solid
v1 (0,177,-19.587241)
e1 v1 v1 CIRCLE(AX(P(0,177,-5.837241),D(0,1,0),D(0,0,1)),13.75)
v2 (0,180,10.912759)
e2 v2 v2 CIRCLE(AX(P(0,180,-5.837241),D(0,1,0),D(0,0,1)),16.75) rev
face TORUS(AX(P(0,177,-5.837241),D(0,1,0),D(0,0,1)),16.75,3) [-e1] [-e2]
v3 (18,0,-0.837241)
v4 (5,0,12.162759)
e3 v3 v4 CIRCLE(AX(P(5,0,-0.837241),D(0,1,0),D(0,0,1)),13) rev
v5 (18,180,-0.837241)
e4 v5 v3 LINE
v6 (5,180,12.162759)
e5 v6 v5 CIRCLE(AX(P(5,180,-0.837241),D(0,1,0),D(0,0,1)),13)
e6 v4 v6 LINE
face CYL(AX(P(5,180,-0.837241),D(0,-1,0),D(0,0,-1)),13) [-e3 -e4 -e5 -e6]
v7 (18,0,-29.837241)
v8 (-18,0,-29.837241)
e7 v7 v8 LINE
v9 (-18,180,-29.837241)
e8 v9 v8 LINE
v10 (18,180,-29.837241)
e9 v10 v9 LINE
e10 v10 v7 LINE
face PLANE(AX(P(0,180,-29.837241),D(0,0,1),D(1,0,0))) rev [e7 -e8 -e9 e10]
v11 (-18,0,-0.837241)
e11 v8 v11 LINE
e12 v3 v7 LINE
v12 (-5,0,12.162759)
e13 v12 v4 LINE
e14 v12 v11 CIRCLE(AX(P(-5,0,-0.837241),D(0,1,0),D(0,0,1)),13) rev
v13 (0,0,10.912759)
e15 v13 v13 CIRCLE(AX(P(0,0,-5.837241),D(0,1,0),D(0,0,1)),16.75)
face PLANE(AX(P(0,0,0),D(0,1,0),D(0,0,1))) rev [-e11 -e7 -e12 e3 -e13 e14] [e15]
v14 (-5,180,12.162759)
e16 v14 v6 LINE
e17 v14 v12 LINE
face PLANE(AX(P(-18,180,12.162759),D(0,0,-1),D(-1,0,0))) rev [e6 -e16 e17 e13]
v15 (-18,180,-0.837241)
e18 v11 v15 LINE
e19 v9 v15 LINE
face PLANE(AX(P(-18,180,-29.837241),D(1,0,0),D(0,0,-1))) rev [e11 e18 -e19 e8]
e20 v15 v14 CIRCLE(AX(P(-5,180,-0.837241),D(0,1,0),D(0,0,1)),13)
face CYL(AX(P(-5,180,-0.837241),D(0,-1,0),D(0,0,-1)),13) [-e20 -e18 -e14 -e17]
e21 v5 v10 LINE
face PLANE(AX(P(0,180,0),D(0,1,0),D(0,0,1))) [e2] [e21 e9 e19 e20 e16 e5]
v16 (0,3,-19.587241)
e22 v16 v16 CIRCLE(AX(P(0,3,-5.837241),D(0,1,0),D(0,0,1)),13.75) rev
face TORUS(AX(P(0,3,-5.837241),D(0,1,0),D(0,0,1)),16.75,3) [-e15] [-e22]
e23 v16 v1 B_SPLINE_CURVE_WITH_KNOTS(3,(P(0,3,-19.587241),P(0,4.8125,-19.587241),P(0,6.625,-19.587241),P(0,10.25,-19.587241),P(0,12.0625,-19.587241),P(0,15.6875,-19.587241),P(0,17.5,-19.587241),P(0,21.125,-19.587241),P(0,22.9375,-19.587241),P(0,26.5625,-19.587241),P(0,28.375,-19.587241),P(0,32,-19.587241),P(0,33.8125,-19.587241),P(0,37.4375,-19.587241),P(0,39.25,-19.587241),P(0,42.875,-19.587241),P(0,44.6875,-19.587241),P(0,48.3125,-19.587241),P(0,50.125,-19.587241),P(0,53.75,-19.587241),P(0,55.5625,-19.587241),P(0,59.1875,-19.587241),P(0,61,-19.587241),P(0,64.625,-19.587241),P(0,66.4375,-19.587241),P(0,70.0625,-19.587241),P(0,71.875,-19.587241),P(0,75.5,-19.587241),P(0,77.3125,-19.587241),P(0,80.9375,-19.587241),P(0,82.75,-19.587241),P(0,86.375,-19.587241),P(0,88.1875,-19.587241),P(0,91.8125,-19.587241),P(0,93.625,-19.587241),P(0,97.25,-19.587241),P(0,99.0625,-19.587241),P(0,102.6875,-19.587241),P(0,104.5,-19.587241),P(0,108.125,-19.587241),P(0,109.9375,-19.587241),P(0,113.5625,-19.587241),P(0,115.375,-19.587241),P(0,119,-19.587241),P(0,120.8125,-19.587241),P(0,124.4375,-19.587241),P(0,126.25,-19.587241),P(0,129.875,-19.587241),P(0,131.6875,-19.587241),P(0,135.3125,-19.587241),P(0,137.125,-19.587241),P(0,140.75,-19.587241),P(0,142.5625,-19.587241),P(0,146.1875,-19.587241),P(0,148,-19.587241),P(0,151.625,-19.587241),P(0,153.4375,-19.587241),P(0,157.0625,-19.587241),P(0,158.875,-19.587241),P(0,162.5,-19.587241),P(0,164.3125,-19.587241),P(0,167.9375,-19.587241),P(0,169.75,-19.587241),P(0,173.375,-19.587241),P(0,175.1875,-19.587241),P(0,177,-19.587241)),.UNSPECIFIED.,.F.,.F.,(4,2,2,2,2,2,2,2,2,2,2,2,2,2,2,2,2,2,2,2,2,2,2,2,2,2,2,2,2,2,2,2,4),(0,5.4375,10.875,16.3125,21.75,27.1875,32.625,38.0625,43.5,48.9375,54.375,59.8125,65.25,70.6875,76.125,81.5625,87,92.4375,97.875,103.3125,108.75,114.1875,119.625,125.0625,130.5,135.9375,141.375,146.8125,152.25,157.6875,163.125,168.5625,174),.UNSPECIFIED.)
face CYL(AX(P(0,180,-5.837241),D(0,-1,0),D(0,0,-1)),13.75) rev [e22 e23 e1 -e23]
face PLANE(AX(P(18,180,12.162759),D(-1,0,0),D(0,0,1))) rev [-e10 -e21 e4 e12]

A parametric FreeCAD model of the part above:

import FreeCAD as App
import Part
import Sketcher
Q = App.Units.Quantity


def edges_at(feature, points):
    """Names of the edges that pass closest to the given points."""
    edges = feature.Shape.Edges
    near = lambda p: min(range(len(edges)), key=lambda i: edges[i].distToShape(Part.Vertex(*p))[0])
    return sorted({f"Edge{near(p) + 1}" for p in points})

doc = App.newDocument("Part")
body = doc.addObject("PartDesign::Body", "Body")

# Sketch on XZ plane
sketch1 = body.newObject("Sketcher::SketchObject", "Sketch")
sketch1.AttachmentSupport = (doc.getObject("XZ_Plane"), [""])
sketch1.MapMode = "FlatFace"
sketch1.addGeometry([
    Part.LineSegment(App.Vector(-18, -30, 0), App.Vector(-18, 12, 0)),  # 0
    Part.LineSegment(App.Vector(-18, 12, 0), App.Vector(18, 12, 0)),  # 1
    Part.LineSegment(App.Vector(18, 12, 0), App.Vector(18, -30, 0)),  # 2
    Part.LineSegment(App.Vector(18, -30, 0), App.Vector(-18, -30, 0)),  # 3
    Part.Circle(App.Vector(0, -6, 0), App.Vector(0, 0, 1), 14),  # 4
], False)
sketch1.addConstraint([
    Sketcher.Constraint("Coincident", 0, 2, 1, 1),
    Sketcher.Constraint("Coincident", 1, 2, 2, 1),
    Sketcher.Constraint("Coincident", 2, 2, 3, 1),
    Sketcher.Constraint("Coincident", 3, 2, 0, 1),
    Sketcher.Constraint("Vertical", 0),
    Sketcher.Constraint("Horizontal", 1),
    Sketcher.Constraint("Vertical", 2),
    Sketcher.Constraint("Horizontal", 3),
    Sketcher.Constraint("PointOnObject", 4, 3, -2),
    Sketcher.Constraint("Diameter", 4, Q("27.5 mm")),
    Sketcher.Constraint("DistanceX", 1, 1, 1, 2, Q("36 mm")),
    Sketcher.Constraint("DistanceY", 0, 1, 0, 2, Q("42 mm")),
    Sketcher.Constraint("DistanceX", 0, 2, -1, 1, Q("18 mm")),
    Sketcher.Constraint("DistanceY", 4, 3, 0, 2, Q("18 mm")),
    Sketcher.Constraint("DistanceY", 4, 3, -1, 1, Q("5.837241 mm")),
])
pad1 = body.newObject("PartDesign::Pad", "Pad")
pad1.Profile = sketch1
pad1.Length = 180
pad1.Reversed = True
doc.recompute()

fillet = body.newObject("PartDesign::Fillet", "Fillet")
fillet.Base = (pad1, edges_at(pad1, [(18, 90, 12.163), (-18, 90, 12.163)]))
fillet.Radius = 13
doc.recompute()

fillet2 = body.newObject("PartDesign::Fillet", "Fillet001")
fillet2.Base = (fillet, edges_at(fillet, [(0, 0, 7.913), (0, 180, 7.913)]))
fillet2.Radius = 3

doc.recompute()
